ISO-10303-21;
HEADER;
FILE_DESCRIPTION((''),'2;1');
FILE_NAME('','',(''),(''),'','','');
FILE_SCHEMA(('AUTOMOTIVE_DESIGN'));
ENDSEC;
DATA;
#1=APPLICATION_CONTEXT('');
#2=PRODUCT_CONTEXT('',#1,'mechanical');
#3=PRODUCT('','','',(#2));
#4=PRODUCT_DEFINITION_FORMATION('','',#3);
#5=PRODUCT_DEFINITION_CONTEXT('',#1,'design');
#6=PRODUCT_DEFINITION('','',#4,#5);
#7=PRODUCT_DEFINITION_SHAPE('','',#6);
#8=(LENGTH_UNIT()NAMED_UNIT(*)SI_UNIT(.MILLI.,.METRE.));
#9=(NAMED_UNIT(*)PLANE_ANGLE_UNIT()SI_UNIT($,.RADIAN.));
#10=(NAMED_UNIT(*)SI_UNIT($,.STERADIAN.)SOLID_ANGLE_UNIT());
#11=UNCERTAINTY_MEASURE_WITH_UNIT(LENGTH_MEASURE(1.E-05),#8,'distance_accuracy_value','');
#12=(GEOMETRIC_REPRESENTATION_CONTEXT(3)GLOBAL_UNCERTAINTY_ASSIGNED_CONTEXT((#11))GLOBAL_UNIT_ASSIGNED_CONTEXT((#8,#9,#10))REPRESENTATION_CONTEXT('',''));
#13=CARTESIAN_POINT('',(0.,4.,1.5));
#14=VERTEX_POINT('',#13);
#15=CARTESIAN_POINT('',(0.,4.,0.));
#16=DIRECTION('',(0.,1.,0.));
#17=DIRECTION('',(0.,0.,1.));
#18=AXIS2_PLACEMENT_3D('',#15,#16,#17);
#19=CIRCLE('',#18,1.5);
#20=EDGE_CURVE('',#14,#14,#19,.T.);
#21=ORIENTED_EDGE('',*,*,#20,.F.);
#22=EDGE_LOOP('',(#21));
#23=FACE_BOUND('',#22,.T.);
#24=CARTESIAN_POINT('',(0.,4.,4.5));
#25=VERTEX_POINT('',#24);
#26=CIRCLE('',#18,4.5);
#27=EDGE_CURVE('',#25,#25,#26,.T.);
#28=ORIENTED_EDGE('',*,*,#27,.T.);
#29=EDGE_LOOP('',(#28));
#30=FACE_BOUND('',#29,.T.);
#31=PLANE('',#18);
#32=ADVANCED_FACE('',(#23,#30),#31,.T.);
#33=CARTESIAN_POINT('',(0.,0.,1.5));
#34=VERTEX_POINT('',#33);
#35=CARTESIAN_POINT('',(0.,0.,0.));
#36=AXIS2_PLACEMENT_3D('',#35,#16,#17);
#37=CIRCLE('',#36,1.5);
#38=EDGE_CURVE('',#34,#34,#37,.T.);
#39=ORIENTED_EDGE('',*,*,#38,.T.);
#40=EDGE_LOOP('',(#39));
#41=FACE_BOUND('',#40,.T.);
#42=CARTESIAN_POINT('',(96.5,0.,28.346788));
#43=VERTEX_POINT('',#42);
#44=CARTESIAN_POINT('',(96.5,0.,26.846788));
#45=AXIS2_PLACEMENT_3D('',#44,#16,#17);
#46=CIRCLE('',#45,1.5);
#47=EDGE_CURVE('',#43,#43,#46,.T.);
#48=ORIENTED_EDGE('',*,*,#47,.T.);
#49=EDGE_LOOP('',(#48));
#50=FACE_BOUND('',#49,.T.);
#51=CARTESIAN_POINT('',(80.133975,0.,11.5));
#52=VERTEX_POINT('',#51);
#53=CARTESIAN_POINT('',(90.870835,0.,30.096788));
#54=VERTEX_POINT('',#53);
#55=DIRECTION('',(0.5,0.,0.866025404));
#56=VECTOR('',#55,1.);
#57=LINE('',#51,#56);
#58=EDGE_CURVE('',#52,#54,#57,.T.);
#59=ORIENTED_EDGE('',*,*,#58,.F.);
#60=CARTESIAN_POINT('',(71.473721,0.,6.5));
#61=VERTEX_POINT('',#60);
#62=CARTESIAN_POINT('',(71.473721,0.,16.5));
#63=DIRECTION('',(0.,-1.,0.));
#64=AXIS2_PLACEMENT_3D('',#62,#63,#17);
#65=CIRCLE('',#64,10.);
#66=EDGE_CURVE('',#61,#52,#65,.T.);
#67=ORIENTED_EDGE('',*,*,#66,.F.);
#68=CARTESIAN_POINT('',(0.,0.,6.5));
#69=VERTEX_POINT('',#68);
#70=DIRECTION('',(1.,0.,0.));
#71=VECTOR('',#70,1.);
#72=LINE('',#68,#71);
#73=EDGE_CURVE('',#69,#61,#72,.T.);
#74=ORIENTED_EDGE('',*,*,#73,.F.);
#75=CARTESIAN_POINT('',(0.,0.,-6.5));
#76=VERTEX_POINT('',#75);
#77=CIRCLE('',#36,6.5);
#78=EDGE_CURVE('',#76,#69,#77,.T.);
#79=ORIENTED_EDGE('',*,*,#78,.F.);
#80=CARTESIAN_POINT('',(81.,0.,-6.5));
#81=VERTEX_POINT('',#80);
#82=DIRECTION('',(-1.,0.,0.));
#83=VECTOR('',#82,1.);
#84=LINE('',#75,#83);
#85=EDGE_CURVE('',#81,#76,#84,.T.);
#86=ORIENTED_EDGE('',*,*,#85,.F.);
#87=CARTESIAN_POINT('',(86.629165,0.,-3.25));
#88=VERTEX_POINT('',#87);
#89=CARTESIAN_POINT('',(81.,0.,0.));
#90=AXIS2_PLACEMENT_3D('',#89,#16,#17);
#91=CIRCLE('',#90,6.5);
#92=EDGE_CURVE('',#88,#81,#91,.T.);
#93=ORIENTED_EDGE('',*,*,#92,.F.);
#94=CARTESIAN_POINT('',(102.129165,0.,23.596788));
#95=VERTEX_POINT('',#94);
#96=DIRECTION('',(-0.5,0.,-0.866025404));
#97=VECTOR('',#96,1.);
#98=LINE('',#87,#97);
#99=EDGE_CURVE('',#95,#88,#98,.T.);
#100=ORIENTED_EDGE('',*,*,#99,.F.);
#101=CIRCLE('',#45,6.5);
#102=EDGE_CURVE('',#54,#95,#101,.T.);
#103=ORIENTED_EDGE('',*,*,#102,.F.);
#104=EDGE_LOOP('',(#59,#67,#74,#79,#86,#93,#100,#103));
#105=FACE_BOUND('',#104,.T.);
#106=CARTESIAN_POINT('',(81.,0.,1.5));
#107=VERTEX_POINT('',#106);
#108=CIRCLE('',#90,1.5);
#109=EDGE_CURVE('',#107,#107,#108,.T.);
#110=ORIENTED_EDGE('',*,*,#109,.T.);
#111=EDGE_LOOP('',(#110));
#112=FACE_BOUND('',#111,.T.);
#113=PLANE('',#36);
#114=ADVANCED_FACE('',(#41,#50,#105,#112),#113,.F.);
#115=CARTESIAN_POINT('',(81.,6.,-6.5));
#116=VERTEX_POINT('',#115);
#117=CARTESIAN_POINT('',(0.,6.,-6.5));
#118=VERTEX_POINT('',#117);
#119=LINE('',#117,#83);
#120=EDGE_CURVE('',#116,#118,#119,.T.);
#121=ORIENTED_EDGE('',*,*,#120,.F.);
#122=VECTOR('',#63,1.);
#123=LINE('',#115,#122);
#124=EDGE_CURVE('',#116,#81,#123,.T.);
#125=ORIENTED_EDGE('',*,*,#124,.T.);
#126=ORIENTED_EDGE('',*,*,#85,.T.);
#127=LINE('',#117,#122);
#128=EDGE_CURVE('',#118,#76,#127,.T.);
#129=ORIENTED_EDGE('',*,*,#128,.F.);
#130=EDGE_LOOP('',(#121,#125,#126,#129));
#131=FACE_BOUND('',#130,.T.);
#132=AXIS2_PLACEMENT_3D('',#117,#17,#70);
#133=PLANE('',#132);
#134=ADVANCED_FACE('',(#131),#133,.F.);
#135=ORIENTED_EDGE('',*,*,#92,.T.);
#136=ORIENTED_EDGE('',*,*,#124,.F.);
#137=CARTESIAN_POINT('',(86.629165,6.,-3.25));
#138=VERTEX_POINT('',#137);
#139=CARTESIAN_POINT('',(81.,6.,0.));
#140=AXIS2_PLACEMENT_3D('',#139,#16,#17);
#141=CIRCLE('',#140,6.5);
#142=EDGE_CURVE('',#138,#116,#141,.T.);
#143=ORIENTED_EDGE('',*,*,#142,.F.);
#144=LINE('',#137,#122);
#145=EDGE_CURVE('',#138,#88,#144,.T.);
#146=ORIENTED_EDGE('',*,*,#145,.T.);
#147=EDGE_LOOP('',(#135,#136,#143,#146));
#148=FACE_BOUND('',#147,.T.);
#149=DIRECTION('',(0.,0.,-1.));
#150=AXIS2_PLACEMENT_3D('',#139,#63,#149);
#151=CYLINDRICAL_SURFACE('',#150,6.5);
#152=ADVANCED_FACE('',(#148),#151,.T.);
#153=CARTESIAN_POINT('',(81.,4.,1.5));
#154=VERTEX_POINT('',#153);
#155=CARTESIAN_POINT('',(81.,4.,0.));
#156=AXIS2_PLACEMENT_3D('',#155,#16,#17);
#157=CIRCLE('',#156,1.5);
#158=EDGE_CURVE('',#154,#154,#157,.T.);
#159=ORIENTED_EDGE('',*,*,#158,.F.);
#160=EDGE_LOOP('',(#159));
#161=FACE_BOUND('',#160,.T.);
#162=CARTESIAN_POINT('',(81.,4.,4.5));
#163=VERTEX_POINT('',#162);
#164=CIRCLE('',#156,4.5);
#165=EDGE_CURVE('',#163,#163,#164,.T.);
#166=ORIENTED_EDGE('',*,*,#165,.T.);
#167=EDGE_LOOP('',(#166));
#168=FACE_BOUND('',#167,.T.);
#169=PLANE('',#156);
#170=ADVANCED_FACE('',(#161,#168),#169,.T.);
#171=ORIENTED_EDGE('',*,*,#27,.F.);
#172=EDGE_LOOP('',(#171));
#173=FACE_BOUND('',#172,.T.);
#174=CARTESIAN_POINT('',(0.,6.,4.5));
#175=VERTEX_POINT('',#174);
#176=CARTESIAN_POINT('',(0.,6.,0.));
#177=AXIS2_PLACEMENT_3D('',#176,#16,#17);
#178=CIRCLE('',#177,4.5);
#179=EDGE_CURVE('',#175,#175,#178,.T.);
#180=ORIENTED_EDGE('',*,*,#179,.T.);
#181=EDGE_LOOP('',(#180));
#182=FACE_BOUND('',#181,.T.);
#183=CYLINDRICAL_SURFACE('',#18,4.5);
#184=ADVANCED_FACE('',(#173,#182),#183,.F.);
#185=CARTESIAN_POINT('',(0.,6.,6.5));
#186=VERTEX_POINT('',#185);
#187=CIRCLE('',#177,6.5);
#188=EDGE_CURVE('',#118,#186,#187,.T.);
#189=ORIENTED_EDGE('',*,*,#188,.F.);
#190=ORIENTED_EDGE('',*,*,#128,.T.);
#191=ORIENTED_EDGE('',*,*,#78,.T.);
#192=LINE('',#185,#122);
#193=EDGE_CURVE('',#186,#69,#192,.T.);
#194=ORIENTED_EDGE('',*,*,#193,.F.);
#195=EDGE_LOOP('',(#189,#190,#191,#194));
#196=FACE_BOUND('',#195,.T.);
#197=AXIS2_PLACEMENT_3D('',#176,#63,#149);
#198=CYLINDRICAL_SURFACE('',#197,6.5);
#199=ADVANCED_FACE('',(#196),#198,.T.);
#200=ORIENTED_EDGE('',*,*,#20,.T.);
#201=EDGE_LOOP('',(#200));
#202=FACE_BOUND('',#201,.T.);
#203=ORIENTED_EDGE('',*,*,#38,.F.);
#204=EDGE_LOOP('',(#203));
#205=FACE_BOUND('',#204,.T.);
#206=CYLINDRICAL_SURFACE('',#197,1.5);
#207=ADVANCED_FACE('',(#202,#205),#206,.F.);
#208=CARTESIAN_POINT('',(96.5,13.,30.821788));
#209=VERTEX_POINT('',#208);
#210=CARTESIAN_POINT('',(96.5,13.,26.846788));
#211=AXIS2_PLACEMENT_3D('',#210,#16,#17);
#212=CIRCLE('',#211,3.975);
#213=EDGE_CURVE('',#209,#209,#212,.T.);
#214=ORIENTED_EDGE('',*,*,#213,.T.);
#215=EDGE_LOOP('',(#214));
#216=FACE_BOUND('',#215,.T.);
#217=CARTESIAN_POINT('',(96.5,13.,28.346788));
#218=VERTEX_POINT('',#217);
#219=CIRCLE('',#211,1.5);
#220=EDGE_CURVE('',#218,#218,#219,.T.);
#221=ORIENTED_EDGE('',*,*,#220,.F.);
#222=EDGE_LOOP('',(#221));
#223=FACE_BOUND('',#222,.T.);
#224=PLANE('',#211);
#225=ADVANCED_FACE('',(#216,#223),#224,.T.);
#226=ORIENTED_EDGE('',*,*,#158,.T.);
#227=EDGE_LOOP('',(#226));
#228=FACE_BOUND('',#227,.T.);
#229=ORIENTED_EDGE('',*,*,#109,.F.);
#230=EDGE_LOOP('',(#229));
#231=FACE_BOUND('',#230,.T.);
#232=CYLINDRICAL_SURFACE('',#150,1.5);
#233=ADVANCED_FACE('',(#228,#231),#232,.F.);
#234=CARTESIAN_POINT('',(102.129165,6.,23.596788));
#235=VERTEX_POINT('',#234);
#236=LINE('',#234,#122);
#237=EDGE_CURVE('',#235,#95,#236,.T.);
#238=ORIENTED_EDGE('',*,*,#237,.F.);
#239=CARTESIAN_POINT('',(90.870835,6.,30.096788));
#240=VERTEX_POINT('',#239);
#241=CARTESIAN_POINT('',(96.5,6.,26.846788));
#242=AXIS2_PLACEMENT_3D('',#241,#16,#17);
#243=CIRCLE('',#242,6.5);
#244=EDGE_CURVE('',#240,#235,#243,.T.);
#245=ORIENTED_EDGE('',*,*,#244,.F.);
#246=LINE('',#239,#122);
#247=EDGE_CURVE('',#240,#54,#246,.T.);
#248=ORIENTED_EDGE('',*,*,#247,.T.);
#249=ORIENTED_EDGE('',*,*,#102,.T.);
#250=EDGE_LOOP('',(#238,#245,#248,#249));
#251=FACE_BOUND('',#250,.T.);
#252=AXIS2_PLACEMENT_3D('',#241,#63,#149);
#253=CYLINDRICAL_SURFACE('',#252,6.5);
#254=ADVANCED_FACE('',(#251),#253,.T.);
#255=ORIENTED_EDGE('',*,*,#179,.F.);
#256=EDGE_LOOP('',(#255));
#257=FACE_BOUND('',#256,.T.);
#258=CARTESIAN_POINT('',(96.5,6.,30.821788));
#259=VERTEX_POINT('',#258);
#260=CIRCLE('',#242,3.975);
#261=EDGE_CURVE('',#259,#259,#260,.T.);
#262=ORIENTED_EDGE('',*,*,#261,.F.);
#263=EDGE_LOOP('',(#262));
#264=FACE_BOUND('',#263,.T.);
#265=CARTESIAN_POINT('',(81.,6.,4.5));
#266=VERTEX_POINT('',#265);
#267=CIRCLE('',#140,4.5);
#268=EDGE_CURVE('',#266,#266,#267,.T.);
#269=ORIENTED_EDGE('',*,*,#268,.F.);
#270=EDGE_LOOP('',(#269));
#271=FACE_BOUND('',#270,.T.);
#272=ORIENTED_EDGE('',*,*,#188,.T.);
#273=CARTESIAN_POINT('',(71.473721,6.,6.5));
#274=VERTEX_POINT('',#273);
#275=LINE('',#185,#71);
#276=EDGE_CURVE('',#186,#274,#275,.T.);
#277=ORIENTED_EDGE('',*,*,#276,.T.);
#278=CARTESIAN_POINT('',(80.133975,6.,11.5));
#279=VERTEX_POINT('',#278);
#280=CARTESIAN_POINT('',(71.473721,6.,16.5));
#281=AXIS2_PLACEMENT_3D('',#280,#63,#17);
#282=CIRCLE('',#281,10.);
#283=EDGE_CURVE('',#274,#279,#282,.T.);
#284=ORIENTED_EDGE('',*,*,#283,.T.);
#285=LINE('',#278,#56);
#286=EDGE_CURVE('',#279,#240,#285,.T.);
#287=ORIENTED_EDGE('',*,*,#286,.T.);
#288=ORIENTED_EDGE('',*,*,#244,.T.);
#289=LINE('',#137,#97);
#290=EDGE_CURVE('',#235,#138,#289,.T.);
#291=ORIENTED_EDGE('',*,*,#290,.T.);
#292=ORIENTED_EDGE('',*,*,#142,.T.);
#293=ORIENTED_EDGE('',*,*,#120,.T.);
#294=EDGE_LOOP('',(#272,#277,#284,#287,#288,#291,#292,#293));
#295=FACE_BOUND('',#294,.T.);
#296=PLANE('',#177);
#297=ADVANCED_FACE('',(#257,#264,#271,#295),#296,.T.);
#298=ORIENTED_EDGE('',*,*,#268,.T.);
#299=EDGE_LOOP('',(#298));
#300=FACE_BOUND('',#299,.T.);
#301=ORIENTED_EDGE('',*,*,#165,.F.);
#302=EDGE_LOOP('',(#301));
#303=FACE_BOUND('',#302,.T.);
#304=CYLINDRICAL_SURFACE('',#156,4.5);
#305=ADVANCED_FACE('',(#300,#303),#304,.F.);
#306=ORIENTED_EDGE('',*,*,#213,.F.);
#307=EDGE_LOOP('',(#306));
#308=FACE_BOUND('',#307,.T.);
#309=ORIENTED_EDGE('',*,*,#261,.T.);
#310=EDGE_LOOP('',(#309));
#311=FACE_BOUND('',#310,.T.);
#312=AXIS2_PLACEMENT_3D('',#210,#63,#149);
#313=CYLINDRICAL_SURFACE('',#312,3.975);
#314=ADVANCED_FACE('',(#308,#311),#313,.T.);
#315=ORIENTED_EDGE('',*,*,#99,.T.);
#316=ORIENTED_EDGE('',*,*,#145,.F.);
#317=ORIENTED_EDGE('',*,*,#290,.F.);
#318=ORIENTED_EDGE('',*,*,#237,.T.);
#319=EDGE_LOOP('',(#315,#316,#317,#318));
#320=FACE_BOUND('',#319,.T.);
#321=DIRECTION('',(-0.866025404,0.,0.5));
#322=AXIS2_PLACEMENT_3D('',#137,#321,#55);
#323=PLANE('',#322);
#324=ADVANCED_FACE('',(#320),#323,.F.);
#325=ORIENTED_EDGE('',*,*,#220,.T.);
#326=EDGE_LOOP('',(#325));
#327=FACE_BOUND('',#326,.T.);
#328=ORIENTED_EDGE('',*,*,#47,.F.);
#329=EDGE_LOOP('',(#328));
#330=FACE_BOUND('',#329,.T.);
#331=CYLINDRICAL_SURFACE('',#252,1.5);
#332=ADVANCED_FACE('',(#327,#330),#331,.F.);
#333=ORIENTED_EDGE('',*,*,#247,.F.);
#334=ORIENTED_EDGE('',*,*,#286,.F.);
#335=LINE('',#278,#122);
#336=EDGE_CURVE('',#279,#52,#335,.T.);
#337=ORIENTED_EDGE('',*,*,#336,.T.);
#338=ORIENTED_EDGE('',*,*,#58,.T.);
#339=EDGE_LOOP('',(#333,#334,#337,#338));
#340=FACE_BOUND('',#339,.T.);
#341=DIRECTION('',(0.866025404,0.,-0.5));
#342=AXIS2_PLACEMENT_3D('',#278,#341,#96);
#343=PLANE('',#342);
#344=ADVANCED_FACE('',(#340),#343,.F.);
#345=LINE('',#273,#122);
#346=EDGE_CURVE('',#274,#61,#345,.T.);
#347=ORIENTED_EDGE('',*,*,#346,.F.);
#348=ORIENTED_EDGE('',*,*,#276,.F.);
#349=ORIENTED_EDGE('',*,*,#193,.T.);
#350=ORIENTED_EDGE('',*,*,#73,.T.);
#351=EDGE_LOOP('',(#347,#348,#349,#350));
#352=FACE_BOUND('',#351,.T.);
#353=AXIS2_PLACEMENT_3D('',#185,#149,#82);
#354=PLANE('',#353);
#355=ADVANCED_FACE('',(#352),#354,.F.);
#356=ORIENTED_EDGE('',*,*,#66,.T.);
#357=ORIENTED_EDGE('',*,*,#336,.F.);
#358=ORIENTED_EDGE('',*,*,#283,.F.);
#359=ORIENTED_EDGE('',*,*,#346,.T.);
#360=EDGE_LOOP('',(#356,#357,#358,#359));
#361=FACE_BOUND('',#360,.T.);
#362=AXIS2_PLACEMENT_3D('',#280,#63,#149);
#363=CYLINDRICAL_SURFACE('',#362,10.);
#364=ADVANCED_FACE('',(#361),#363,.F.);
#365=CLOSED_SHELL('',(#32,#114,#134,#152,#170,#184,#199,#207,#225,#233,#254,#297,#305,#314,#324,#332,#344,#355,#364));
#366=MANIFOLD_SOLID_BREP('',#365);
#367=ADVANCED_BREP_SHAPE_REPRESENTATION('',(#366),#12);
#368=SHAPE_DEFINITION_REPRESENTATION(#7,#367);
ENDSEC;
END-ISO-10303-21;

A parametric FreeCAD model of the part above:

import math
import FreeCAD as App
import Part
import Sketcher
from FreeCAD import Vector
Q = App.Units.Quantity

doc = App.newDocument("Part")
body = doc.addObject("PartDesign::Body", "Body")

# Sketch on XZ plane
sketch1 = body.newObject("Sketcher::SketchObject", "Sketch")
sketch1.AttachmentSupport = (doc.getObject("XZ_Plane"), [""])
sketch1.MapMode = "FlatFace"
sketch1.addGeometry(Part.LineSegment(Vector(81, -6.5, 0), Vector(0, -6.5, 0)), False)
sketch1.addGeometry(Part.ArcOfCircle(Part.Circle(Vector(0, 0, 0), Vector(0, 0, 1), 6.5), math.radians(90), math.radians(270)), False)
sketch1.addGeometry(Part.LineSegment(Vector(0, 6.5, 0), Vector(71.5, 6.5, 0)), False)
sketch1.addGeometry(Part.ArcOfCircle(Part.Circle(Vector(71.5, 16.5, 0), Vector(0, 0, 1), 10), math.radians(-90), math.radians(-30)), False)
sketch1.addGeometry(Part.LineSegment(Vector(80.1, 11.5, 0), Vector(90.9, 30.1, 0)), False)
sketch1.addGeometry(Part.ArcOfCircle(Part.Circle(Vector(96.5, 26.8, 0), Vector(0, 0, 1), 6.5), math.radians(-30), math.radians(150)), False)
sketch1.addGeometry(Part.LineSegment(Vector(102.1, 23.6, 0), Vector(86.6, -3.2, 0)), False)
sketch1.addGeometry(Part.ArcOfCircle(Part.Circle(Vector(81, 0, 0), Vector(0, 0, 1), 6.5), math.radians(-90), math.radians(-30)), False)
sketch1.addGeometry(Part.Circle(Vector(96.5, 26.8, 0), Vector(0, 0, 1), 1.5), False)
sketch1.addGeometry(Part.Circle(Vector(81, 0, 0), Vector(0, 0, 1), 1.5), False)
sketch1.addGeometry(Part.Circle(Vector(0, 0, 0), Vector(0, 0, 1), 1.5), False)
sketch1.addConstraint(Sketcher.Constraint("Tangent", 0, 2, 1, 2))
sketch1.addConstraint(Sketcher.Constraint("Tangent", 1, 1, 2, 1))
sketch1.addConstraint(Sketcher.Constraint("Tangent", 2, 2, 3, 1))
sketch1.addConstraint(Sketcher.Constraint("Tangent", 3, 2, 4, 1))
sketch1.addConstraint(Sketcher.Constraint("Tangent", 4, 2, 5, 2))
sketch1.addConstraint(Sketcher.Constraint("Tangent", 5, 1, 6, 1))
sketch1.addConstraint(Sketcher.Constraint("Tangent", 6, 2, 7, 2))
sketch1.addConstraint(Sketcher.Constraint("Tangent", 7, 1, 0, 1))
sketch1.addConstraint(Sketcher.Constraint("Horizontal", 0))
sketch1.addConstraint(Sketcher.Constraint("Horizontal", 2))
sketch1.addConstraint(Sketcher.Constraint("Coincident", 1, 3, -1, 1))
sketch1.addConstraint(Sketcher.Constraint("Coincident", 10, 3, -1, 1))
sketch1.addConstraint(Sketcher.Constraint("Coincident", 8, 3, 5, 3))
sketch1.addConstraint(Sketcher.Constraint("Coincident", 9, 3, 7, 3))
sketch1.addConstraint(Sketcher.Constraint("Equal", 1, 5))
sketch1.addConstraint(Sketcher.Constraint("Equal", 5, 7))
sketch1.addConstraint(Sketcher.Constraint("Equal", 8, 9))
sketch1.addConstraint(Sketcher.Constraint("Equal", 9, 10))
sketch1.addConstraint(Sketcher.Constraint("Parallel", 4, 6))
sketch1.addConstraint(Sketcher.Constraint("Diameter", 8, Q("3 mm")))
sketch1.addConstraint(Sketcher.Constraint("Radius", 3, Q("10 mm")))
sketch1.addConstraint(Sketcher.Constraint("Radius", 1, Q("6.5 mm")))
sketch1.addConstraint(Sketcher.Constraint("DistanceX", 0, 2, 0, 1, Q("81 mm")))
sketch1.addConstraint(Sketcher.Constraint("Angle", 4, Q("60 deg")))
sketch1.addConstraint(Sketcher.Constraint("Distance", 6, Q("31 mm")))
pad1 = body.newObject("PartDesign::Pad", "Pad")
pad1.Profile = sketch1
pad1.Length = 6
pad1.Reversed = True

# Sketch on XZ plane
sketch2 = body.newObject("Sketcher::SketchObject", "Sketch001")
sketch2.AttachmentSupport = (doc.getObject("XZ_Plane"), [""])
sketch2.MapMode = "FlatFace"
sketch2.AttachmentOffset = App.Placement(Vector(0, 0, -6), App.Rotation())
sketch2.addGeometry(Part.Circle(Vector(0, 0, 0), Vector(0, 0, 1), 4.5), False)
sketch2.addGeometry(Part.Circle(Vector(81, 0, 0), Vector(0, 0, 1), 4.5), False)
sketch2.addConstraint(Sketcher.Constraint("Coincident", 0, 3, -1, 1))
sketch2.addConstraint(Sketcher.Constraint("Equal", 0, 1))
sketch2.addConstraint(Sketcher.Constraint("PointOnObject", 1, 3, -1))
sketch2.addConstraint(Sketcher.Constraint("Diameter", 0, Q("9 mm")))
sketch2.addConstraint(Sketcher.Constraint("DistanceX", -1, 1, 1, 3, Q("81 mm")))
pocket1 = body.newObject("PartDesign::Pocket", "Pocket")
pocket1.Profile = sketch2
pocket1.Length = 2
pocket1.Reversed = True

# Sketch on XZ plane
sketch3 = body.newObject("Sketcher::SketchObject", "Sketch002")
sketch3.AttachmentSupport = (doc.getObject("XZ_Plane"), [""])
sketch3.MapMode = "FlatFace"
sketch3.AttachmentOffset = App.Placement(Vector(0, 0, -6), App.Rotation())
sketch3.addGeometry(Part.Circle(Vector(96.5, 26.8, 0), Vector(0, 0, 1), 4), False)
sketch3.addGeometry(Part.Circle(Vector(96.5, 26.8, 0), Vector(0, 0, 1), 1.5), False)
sketch3.addConstraint(Sketcher.Constraint("Coincident", 1, 3, 0, 3))
sketch3.addConstraint(Sketcher.Constraint("Diameter", 1, Q("3 mm")))
sketch3.addConstraint(Sketcher.Constraint("Diameter", 0, Q("7.95 mm")))
sketch3.addConstraint(Sketcher.Constraint("DistanceX", -1, 1, 0, 3, Q("96.5 mm")))
sketch3.addConstraint(Sketcher.Constraint("DistanceY", -1, 1, 0, 3, Q("26.846788 mm")))
pad2 = body.newObject("PartDesign::Pad", "Pad001")
pad2.Profile = sketch3
pad2.Length = 7
pad2.Reversed = True

doc.recompute()
